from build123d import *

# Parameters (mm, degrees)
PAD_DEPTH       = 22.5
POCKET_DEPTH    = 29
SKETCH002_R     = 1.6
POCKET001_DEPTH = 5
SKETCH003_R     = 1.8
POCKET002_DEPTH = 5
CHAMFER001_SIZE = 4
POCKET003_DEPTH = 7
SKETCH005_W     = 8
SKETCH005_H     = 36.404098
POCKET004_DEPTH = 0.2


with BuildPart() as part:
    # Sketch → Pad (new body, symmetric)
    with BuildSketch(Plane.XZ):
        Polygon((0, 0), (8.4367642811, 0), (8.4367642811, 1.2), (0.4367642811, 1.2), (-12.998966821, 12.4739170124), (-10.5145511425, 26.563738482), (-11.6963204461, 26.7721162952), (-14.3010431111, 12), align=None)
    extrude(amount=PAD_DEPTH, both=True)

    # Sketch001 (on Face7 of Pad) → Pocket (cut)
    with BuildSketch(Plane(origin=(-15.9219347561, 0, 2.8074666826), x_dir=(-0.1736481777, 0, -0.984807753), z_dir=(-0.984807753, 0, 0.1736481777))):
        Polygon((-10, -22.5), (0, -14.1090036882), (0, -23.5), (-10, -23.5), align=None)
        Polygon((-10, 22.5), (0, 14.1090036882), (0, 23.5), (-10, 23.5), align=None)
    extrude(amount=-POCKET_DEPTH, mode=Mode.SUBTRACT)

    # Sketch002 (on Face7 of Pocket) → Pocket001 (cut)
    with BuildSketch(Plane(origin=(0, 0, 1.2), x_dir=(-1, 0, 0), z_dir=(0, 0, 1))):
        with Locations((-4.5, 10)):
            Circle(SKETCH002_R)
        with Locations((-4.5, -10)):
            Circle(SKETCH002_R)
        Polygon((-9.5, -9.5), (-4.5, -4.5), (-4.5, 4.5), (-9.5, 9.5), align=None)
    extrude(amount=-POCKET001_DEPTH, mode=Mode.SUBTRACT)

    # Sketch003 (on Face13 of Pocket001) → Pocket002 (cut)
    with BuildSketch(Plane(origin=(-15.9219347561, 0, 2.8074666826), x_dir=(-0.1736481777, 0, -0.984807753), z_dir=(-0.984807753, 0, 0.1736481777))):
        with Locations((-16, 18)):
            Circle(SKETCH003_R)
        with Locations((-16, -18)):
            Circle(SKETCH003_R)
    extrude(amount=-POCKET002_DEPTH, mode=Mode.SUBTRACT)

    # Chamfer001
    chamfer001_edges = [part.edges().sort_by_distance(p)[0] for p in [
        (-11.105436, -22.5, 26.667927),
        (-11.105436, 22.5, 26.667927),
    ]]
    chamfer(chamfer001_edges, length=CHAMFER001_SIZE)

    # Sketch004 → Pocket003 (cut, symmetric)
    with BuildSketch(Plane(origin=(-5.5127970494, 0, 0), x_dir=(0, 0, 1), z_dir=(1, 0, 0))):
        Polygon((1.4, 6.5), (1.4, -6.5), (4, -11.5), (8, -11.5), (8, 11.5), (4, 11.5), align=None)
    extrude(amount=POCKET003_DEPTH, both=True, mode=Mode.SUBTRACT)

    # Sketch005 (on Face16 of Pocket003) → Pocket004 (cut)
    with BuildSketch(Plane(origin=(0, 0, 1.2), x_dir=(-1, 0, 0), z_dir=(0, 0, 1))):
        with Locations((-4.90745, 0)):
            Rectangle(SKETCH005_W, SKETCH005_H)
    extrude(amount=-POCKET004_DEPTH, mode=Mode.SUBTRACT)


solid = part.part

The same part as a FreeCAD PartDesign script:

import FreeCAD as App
import Part
import Sketcher

V = App.Vector
Q = App.Units.Quantity


def edges_at(feature, points):
    """Names of the edges that pass closest to the given points."""
    edges = feature.Shape.Edges
    near = lambda p: min(range(len(edges)), key=lambda i: edges[i].distToShape(Part.Vertex(*p))[0])
    return sorted({f"Edge{near(p) + 1}" for p in points})


def add_polygon(sketch, points):
    """Adds a closed chain of lines whose ends are joined by coincident constraints."""
    first, n = sketch.GeometryCount, len(points)
    for a, b in zip(points, points[1:] + points[:1]):
        sketch.addGeometry(Part.LineSegment(App.Vector(*a, 0), App.Vector(*b, 0)), False)
    for i in range(n):
        sketch.addConstraint(Sketcher.Constraint("Coincident", first + i, 2, first + (i + 1) % n, 1))

doc = App.newDocument("Part")
body = doc.addObject("PartDesign::Body", "Body")

sketch1 = doc.addObject("Sketcher::SketchObject", "Sketch")
body.addObject(sketch1)
sketch1.AttachmentSupport = (doc.XZ_Plane, [""])
sketch1.MapMode = "FlatFace"
add_polygon(sketch1, [(0, 0), (8.4, 0), (8.4, 1.2), (0.4, 1.2), (-13, 12.5), (-10.5, 26.6), (-11.7, 26.8), (-14.3, 12)])
sketch1.addConstraint([
    Sketcher.Constraint("Horizontal", 0),
    Sketcher.Constraint("Vertical", 1),
    Sketcher.Constraint("Horizontal", 2),
    Sketcher.Constraint("Coincident", 7, 2, -1, 1),
    Sketcher.Constraint("Perpendicular", 4, 5),
    Sketcher.Constraint("Perpendicular", 5, 6),
    Sketcher.Constraint("Parallel", 3, 7),
    Sketcher.Constraint("DistanceX", 2, 2, 2, 1, 8.0),
    Sketcher.Constraint("Angle", 3, Q("140 deg")),
    Sketcher.Constraint("Angle", 4, Q("80 deg")),
    Sketcher.Constraint("Distance", 6, 15.0),
    Sketcher.Constraint("DistanceY", 1, 1, 1, 2, 1.2),
    Sketcher.Constraint("DistanceY", -1, 1, 6, 2, 12.0),
    Sketcher.Constraint("Distance", 5, 1.2),
    Sketcher.Constraint("Distance", 3, 17.539101),
])
pad1 = doc.addObject("PartDesign::Pad", "Pad")
body.addObject(pad1)
pad1.Profile = sketch1
pad1.Length = 45
pad1.Midplane = True

sketch2 = doc.addObject("Sketcher::SketchObject", "Sketch001")
body.addObject(sketch2)
sketch2.Placement = App.Placement(V(-15.921935, 0, 2.807467), App.Rotation(V(-0.173648178, 0, -0.984807753), V(0, -1, 0), V(-0.984807753, 0, 0.173648178), "ZXY"))
add_polygon(sketch2, [(0, -14.1), (-10, -22.5), (-10, -23.5), (0, -23.5)])
add_polygon(sketch2, [(-10, 22.5), (0, 14.1), (0, 23.5), (-10, 23.5)])
sketch2.addConstraint([
    Sketcher.Constraint("Vertical", 1),
    Sketcher.Constraint("Horizontal", 2),
    Sketcher.Constraint("Vertical", 3),
    Sketcher.Constraint("Vertical", 5),
    Sketcher.Constraint("Horizontal", 6),
    Sketcher.Constraint("Vertical", 7),
    Sketcher.Constraint("Symmetric", 3, 2, 4, 2, -1, 1),
    Sketcher.Constraint("Symmetric", 2, 2, 5, 2, -1),
    Sketcher.Constraint("Symmetric", 0, 2, 7, 2, -1),
    Sketcher.Constraint("DistanceX", 2, 1, 2, 2, 10.0),
    Sketcher.Constraint("DistanceY", 1, 2, 1, 1, 1.0),
    Sketcher.Constraint("Angle", 0, Q("-140 deg")),
    Sketcher.Constraint("DistanceY", 2, 2, 5, 2, 47.0),
])
pocket1 = doc.addObject("PartDesign::Pocket", "Pocket")
body.addObject(pocket1)
pocket1.Profile = sketch2
pocket1.Length = 29

sketch3 = doc.addObject("Sketcher::SketchObject", "Sketch002")
body.addObject(sketch3)
sketch3.AttachmentSupport = (doc.XY_Plane, [""])
sketch3.MapMode = "FlatFace"
sketch3.AttachmentOffset = App.Placement(V(0, 0, 1.2), App.Rotation())
sketch3.addGeometry(Part.Circle(V(4.5, -10, 0), V(0, 0, 1), 1.6), False)
sketch3.addGeometry(Part.Circle(V(4.5, 10, 0), V(0, 0, 1), 1.6), False)
add_polygon(sketch3, [(9.5, 9.5), (4.5, 4.5), (4.5, -4.5), (9.5, -9.5)])
sketch3.addConstraint([
    Sketcher.Constraint("Vertical", 3),
    Sketcher.Constraint("Vertical", 5),
    Sketcher.Constraint("Equal", 0, 1),
    Sketcher.Constraint("Symmetric", 0, 3, 1, 3, -1),
    Sketcher.Constraint("Perpendicular", 2, 4),
    Sketcher.Constraint("Vertical", 1, 3, 2, 2),
    Sketcher.Constraint("Equal", 2, 4),
    Sketcher.Constraint("Diameter", 0, 3.2),
    Sketcher.Constraint("DistanceY", 3, 2, 3, 1, 9.0),
    Sketcher.Constraint("DistanceY", 5, 1, 5, 2, 19.0),
    Sketcher.Constraint("DistanceY", 0, 3, -1, 1, 10.0),
    Sketcher.Constraint("DistanceX", -1, 1, 0, 3, 4.5),
    Sketcher.Constraint("DistanceY", -1, 1, 2, 2, 4.5),
])
pocket2 = doc.addObject("PartDesign::Pocket", "Pocket001")
body.addObject(pocket2)
pocket2.Profile = sketch3
pocket2.Length = 5

sketch4 = doc.addObject("Sketcher::SketchObject", "Sketch003")
body.addObject(sketch4)
sketch4.Placement = App.Placement(V(-15.921935, 0, 2.807467), App.Rotation(V(-0.173648178, 0, -0.984807753), V(0, -1, 0), V(-0.984807753, 0, 0.173648178), "ZXY"))
sketch4.addGeometry([
    Part.Circle(V(-16, 18, 0), V(0, 0, 1), 1.8),
    Part.Circle(V(-16, -18, 0), V(0, 0, 1), 1.8),
], False)
sketch4.addConstraint([
    Sketcher.Constraint("Equal", 0, 1),
    Sketcher.Constraint("Symmetric", 0, 3, 1, 3, -1),
    Sketcher.Constraint("Diameter", 0, 3.6),
    Sketcher.Constraint("DistanceX", 0, 3, -1, 1, 16.0),
    Sketcher.Constraint("DistanceY", -1, 1, 0, 3, 18.0),
])
pocket3 = doc.addObject("PartDesign::Pocket", "Pocket002")
body.addObject(pocket3)
pocket3.Profile = sketch4
pocket3.Length = 5
doc.recompute()

chamfer = doc.addObject("PartDesign::Chamfer", "Chamfer")
body.addObject(chamfer)
chamfer.Base = (pocket3, edges_at(pocket3, [(-11.105, -22.5, 26.668), (-11.105, 22.5, 26.668)]))
chamfer.Size = 4

sketch5 = doc.addObject("Sketcher::SketchObject", "Sketch004")
body.addObject(sketch5)
sketch5.AttachmentSupport = (doc.YZ_Plane, [""])
sketch5.MapMode = "FlatFace"
sketch5.AttachmentOffset = App.Placement(V(0, 0, -5.512797), App.Rotation())
add_polygon(sketch5, [(-6.5, 1.4), (6.5, 1.4), (11.5, 4), (11.5, 8), (-11.5, 8), (-11.5, 4)])
sketch5.addConstraint([
    Sketcher.Constraint("Horizontal", 0),
    Sketcher.Constraint("Vertical", 2),
    Sketcher.Constraint("Horizontal", 3),
    Sketcher.Constraint("Vertical", 4),
    Sketcher.Constraint("Symmetric", 1, 2, 4, 2, -2),
    Sketcher.Constraint("Equal", 1, 5),
    Sketcher.Constraint("DistanceX", 0, 1, 0, 2, 13.0),
    Sketcher.Constraint("DistanceX", 3, 2, 3, 1, 23.0),
    Sketcher.Constraint("DistanceY", 2, 1, 2, 2, 4.0),
    Sketcher.Constraint("DistanceY", -1, 1, 1, 2, 4.0),
    Sketcher.Constraint("DistanceY", -1, 1, 0, 2, 1.4),
])
pocket4 = doc.addObject("PartDesign::Pocket", "Pocket003")
body.addObject(pocket4)
pocket4.Profile = sketch5
pocket4.Length = 14
pocket4.Midplane = True

sketch6 = doc.addObject("Sketcher::SketchObject", "Sketch005")
body.addObject(sketch6)
sketch6.AttachmentSupport = (doc.XY_Plane, [""])
sketch6.MapMode = "FlatFace"
sketch6.AttachmentOffset = App.Placement(V(0, 0, 1.2), App.Rotation())
add_polygon(sketch6, [(9, -18), (9, 18), (1, 18), (1, -18)])
sketch6.addConstraint([
    Sketcher.Constraint("Vertical", 0),
    Sketcher.Constraint("Horizontal", 1),
    Sketcher.Constraint("Vertical", 2),
    Sketcher.Constraint("Horizontal", 3),
    Sketcher.Constraint("DistanceX", 1, 2, 1, 1, 8.0),
    Sketcher.Constraint("DistanceY", 0, 1, 0, 2, 36.404098),
    Sketcher.Constraint("DistanceX", -1, 1, 0, 2, 8.90745),
    Sketcher.Constraint("DistanceY", -1, 1, 0, 2, 18.202049),
])
pocket5 = doc.addObject("PartDesign::Pocket", "Pocket004")
body.addObject(pocket5)
pocket5.Profile = sketch6
pocket5.Length = 0.2

doc.recompute()
